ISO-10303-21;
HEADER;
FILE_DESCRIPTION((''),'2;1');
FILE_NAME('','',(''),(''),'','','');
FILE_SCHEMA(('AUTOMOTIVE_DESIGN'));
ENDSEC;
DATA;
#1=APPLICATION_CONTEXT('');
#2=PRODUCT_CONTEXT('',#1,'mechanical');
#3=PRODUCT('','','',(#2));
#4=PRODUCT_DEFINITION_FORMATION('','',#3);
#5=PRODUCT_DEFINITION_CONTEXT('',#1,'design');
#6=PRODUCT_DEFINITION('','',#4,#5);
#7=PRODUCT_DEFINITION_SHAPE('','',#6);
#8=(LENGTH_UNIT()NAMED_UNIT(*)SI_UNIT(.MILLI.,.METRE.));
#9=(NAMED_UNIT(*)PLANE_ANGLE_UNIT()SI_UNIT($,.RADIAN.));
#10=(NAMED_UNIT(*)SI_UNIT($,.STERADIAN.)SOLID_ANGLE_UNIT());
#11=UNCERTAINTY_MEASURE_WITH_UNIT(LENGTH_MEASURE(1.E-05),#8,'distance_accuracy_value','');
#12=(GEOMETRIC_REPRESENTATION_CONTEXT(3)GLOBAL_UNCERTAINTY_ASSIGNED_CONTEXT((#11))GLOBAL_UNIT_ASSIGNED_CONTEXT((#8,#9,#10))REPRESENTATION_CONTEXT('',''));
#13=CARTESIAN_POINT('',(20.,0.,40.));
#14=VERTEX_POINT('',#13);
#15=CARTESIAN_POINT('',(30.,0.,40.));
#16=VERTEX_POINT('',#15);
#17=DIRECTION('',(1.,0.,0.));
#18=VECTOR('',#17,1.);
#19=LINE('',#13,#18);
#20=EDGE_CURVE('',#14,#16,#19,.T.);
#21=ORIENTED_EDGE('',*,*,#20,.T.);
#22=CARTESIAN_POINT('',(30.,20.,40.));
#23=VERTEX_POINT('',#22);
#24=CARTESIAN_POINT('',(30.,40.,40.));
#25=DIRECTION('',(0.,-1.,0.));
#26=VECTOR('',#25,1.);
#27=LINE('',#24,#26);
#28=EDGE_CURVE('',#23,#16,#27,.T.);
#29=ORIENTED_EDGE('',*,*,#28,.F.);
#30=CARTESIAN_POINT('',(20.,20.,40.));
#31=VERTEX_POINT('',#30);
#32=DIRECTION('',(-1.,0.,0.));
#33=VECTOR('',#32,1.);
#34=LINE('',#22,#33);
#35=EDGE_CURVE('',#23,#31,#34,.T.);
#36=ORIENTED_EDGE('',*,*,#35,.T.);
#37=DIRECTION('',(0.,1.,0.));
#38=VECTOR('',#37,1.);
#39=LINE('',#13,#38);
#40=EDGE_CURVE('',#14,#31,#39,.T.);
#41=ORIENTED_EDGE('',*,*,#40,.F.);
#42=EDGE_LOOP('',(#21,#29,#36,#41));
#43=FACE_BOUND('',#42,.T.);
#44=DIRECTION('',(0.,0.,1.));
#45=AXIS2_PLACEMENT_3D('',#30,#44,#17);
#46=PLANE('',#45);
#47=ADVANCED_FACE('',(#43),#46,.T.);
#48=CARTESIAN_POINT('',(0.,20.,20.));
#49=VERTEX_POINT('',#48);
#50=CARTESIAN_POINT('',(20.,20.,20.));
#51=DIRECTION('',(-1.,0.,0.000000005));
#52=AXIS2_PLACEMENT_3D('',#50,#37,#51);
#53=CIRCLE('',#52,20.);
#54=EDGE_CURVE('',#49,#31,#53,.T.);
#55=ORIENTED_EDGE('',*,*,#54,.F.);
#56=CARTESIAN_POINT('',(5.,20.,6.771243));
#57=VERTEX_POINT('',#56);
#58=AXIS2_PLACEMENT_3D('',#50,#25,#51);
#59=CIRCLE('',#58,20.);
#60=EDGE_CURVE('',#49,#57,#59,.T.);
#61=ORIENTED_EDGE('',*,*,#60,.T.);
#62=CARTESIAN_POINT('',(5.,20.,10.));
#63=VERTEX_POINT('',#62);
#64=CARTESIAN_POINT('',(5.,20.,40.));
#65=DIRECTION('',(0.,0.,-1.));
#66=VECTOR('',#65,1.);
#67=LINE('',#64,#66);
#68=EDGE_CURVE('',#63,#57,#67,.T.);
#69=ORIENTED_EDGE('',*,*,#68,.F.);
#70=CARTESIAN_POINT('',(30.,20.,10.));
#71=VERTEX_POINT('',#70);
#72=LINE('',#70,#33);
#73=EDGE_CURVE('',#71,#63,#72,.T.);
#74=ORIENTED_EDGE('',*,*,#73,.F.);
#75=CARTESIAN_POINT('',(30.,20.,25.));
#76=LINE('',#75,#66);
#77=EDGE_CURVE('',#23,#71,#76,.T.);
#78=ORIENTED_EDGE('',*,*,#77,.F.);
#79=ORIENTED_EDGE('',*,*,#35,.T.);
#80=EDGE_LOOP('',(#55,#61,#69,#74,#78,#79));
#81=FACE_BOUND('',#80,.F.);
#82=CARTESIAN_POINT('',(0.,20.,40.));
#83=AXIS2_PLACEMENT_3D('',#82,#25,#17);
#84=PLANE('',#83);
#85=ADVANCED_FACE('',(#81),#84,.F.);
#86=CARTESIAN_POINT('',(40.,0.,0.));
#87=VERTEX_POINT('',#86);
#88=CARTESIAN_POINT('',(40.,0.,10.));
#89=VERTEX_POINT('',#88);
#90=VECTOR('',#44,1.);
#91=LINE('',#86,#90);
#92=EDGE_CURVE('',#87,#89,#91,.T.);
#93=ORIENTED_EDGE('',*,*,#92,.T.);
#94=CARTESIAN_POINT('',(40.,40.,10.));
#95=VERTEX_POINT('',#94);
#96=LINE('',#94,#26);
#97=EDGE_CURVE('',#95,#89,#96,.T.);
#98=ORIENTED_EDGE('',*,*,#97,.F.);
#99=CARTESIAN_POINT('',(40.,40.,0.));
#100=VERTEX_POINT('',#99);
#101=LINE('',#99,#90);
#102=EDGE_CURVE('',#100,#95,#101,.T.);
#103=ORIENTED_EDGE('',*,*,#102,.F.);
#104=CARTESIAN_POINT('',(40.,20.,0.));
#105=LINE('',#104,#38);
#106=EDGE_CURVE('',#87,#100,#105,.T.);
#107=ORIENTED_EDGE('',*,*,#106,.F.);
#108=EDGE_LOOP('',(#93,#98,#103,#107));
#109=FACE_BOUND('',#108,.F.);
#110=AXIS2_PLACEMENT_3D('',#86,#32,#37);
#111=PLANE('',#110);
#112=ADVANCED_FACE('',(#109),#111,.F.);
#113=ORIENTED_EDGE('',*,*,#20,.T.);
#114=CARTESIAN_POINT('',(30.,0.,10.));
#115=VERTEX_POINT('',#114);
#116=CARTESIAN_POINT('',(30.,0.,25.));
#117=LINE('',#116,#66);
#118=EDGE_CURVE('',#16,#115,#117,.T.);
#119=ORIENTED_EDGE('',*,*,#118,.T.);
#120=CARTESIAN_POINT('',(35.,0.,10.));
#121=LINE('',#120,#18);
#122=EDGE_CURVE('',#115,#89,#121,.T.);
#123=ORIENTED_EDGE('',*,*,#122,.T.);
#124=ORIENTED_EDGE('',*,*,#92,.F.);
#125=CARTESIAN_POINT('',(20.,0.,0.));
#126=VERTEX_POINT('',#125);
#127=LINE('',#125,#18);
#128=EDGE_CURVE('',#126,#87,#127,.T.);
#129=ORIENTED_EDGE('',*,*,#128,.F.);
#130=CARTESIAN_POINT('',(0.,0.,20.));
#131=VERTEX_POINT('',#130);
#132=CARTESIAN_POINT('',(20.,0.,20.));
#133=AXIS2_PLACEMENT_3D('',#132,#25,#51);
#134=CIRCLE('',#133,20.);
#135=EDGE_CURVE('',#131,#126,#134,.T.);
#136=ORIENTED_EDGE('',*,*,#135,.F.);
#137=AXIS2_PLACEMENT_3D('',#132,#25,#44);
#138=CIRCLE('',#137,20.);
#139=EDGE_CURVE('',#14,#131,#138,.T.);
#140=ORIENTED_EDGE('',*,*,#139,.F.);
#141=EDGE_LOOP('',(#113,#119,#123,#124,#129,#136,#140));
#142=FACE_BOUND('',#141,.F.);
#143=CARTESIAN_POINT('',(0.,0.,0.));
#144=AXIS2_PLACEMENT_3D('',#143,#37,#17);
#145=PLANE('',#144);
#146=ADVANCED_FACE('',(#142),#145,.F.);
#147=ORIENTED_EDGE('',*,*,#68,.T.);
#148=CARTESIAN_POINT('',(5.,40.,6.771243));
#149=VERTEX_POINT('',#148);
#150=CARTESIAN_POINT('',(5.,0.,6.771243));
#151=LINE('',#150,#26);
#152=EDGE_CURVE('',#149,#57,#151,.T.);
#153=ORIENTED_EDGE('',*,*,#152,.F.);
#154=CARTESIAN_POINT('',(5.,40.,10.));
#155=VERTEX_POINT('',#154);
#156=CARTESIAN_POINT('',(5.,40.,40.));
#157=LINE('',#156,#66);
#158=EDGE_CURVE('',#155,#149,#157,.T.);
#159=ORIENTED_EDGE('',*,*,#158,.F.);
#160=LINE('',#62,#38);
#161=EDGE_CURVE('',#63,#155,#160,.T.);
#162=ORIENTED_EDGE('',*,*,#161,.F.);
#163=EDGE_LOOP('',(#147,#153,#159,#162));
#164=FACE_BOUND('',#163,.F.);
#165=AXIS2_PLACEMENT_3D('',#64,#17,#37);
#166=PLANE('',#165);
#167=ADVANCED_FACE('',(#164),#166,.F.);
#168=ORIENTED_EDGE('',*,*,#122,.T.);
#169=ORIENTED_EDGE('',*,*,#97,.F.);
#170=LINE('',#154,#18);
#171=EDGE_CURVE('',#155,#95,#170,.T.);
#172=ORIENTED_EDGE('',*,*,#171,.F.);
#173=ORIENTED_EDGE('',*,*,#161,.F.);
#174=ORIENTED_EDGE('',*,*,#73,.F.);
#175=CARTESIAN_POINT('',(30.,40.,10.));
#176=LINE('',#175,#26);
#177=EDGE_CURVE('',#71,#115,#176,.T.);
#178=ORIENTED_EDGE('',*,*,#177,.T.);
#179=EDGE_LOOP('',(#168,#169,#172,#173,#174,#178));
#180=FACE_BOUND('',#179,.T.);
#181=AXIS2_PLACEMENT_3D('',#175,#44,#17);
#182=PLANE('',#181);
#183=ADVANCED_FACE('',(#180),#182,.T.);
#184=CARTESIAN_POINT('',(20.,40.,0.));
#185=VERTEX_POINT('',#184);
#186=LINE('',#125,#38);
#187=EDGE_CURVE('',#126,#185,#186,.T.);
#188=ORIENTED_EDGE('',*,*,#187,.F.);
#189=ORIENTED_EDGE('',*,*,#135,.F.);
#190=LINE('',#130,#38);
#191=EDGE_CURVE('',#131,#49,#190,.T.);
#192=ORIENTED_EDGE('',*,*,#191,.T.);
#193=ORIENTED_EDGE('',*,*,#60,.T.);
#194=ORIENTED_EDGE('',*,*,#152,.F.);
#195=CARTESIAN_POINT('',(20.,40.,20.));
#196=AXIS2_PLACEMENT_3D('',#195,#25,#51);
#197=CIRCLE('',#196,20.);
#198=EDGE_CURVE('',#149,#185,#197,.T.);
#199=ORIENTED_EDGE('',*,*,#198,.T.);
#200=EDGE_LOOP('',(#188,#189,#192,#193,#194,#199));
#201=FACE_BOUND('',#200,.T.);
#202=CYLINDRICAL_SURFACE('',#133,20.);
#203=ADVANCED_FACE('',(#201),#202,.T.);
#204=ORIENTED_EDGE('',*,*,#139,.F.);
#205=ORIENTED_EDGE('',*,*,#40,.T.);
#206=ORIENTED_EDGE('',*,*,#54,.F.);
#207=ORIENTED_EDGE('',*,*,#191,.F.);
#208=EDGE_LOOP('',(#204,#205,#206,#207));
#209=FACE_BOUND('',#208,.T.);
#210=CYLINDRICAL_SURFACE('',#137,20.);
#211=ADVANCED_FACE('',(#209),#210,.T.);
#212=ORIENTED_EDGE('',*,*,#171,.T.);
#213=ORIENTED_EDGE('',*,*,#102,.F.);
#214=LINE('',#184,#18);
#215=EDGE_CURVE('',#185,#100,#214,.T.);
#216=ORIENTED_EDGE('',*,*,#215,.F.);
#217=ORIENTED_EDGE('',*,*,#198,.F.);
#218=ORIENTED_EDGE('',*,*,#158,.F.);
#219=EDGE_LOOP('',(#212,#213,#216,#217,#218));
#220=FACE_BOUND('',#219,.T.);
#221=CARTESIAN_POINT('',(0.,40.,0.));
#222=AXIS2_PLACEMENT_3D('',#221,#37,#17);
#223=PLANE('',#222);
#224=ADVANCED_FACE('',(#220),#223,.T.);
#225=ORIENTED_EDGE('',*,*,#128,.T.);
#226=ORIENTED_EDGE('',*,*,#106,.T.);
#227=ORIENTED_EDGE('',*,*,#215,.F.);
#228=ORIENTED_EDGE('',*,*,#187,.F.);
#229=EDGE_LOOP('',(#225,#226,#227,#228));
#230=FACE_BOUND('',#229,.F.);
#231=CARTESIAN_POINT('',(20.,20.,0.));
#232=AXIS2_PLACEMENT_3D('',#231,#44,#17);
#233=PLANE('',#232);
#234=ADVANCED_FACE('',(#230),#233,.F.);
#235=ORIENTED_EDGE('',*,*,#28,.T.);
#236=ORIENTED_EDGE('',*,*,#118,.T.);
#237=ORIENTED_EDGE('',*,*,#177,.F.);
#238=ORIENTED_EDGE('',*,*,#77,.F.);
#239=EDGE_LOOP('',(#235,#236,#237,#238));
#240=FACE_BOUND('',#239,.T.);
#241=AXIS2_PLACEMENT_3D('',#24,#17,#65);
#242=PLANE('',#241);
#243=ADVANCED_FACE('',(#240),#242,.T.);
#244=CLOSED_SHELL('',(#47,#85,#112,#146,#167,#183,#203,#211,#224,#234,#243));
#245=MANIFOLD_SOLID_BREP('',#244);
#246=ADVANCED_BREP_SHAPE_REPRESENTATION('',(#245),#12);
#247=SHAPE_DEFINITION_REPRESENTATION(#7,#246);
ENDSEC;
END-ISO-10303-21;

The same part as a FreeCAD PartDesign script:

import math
import FreeCAD as App
import Part
import Sketcher


def add_polygon(sketch, points):
    """Adds a closed chain of lines whose ends are joined by coincident constraints."""
    first, n = sketch.GeometryCount, len(points)
    for a, b in zip(points, points[1:] + points[:1]):
        sketch.addGeometry(Part.LineSegment(App.Vector(*a, 0), App.Vector(*b, 0)), False)
    for i in range(n):
        sketch.addConstraint(Sketcher.Constraint("Coincident", first + i, 2, first + (i + 1) % n, 1))

doc = App.newDocument("Part")
body = doc.addObject("PartDesign::Body", "Body")

# Sketch on XY plane
sketch1 = doc.addObject("Sketcher::SketchObject", "Sketch")
body.addObject(sketch1)
sketch1.AttachmentSupport = (doc.XY_Plane, [""])
sketch1.MapMode = "FlatFace"
add_polygon(sketch1, [(0, 40), (0, 0), (40, 0), (40, 40)])  # lines 0-3
sketch1.addConstraint(Sketcher.Constraint("Vertical", 0))
sketch1.addConstraint(Sketcher.Constraint("Horizontal", 1))
sketch1.addConstraint(Sketcher.Constraint("Vertical", 2))
sketch1.addConstraint(Sketcher.Constraint("Horizontal", 3))
sketch1.addConstraint(Sketcher.Constraint("Coincident", 0, 2, -1, 1))
sketch1.addConstraint(Sketcher.Constraint("Equal", 3, 0))
sketch1.addConstraint(Sketcher.Constraint("DistanceX", 1, 1, 1, 2, 40.0))
pad1 = doc.addObject("PartDesign::Pad", "Pad")
body.addObject(pad1)
pad1.Profile = sketch1
pad1.Length = 40

# Sketch on XY plane
sketch2 = doc.addObject("Sketcher::SketchObject", "Sketch001")
body.addObject(sketch2)
sketch2.AttachmentSupport = (doc.XY_Plane, [""])
sketch2.MapMode = "FlatFace"
sketch2.AttachmentOffset = App.Placement(App.Vector(0, 0, 40), App.Rotation())
add_polygon(sketch2, [(0, 40), (0, 20), (5, 20), (5, 40)])  # lines 0-3
sketch2.addConstraint(Sketcher.Constraint("Vertical", 0))
sketch2.addConstraint(Sketcher.Constraint("Horizontal", 1))
sketch2.addConstraint(Sketcher.Constraint("Vertical", 2))
sketch2.addConstraint(Sketcher.Constraint("Horizontal", 3))
sketch2.addConstraint(Sketcher.Constraint("PointOnObject", 0, 2, -2))
sketch2.addConstraint(Sketcher.Constraint("DistanceX", 1, 1, 1, 2, 5.0))
sketch2.addConstraint(Sketcher.Constraint("DistanceY", 0, 2, 0, 1, 20.0))
sketch2.addConstraint(Sketcher.Constraint("DistanceY", -1, 1, 0, 2, 20.0))
pocket1 = doc.addObject("PartDesign::Pocket", "Pocket")
body.addObject(pocket1)
pocket1.Profile = sketch2
pocket1.Length = 40

# Sketch on XZ plane
sketch3 = doc.addObject("Sketcher::SketchObject", "Sketch002")
body.addObject(sketch3)
sketch3.AttachmentSupport = (doc.XZ_Plane, [""])
sketch3.MapMode = "FlatFace"
sketch3.addGeometry(Part.ArcOfCircle(Part.Circle(App.Vector(20, 20, 0), App.Vector(0, 0, 1), 20), math.radians(180), math.radians(270)), False)
sketch3.addGeometry(Part.LineSegment(App.Vector(20, 0, 0), App.Vector(0, 0, 0)), False)
sketch3.addGeometry(Part.LineSegment(App.Vector(0, 0, 0), App.Vector(0, 20, 0)), False)
sketch3.addGeometry(Part.ArcOfCircle(Part.Circle(App.Vector(20, 20, 0), App.Vector(0, 0, 1), 20), math.radians(90), math.radians(180)), False)
sketch3.addGeometry(Part.LineSegment(App.Vector(0, 20, 0), App.Vector(0, 40, 0)), False)
sketch3.addGeometry(Part.LineSegment(App.Vector(0, 40, 0), App.Vector(20, 40, 0)), False)
sketch3.addConstraint(Sketcher.Constraint("Tangent", 0, 2, 1, 1))
sketch3.addConstraint(Sketcher.Constraint("Coincident", 1, 2, 2, 1))
sketch3.addConstraint(Sketcher.Constraint("Tangent", 2, 2, 0, 1))
sketch3.addConstraint(Sketcher.Constraint("Tangent", 3, 2, 4, 1))
sketch3.addConstraint(Sketcher.Constraint("Coincident", 4, 2, 5, 1))
sketch3.addConstraint(Sketcher.Constraint("Tangent", 5, 2, 3, 1))
sketch3.addConstraint(Sketcher.Constraint("Horizontal", 1))
sketch3.addConstraint(Sketcher.Constraint("Vertical", 2))
sketch3.addConstraint(Sketcher.Constraint("Vertical", 4))
sketch3.addConstraint(Sketcher.Constraint("Horizontal", 5))
sketch3.addConstraint(Sketcher.Constraint("Coincident", 1, 2, -1, 1))
sketch3.addConstraint(Sketcher.Constraint("Coincident", 3, 3, 0, 3))
sketch3.addConstraint(Sketcher.Constraint("Equal", 0, 3))
sketch3.addConstraint(Sketcher.Constraint("Radius", 0, 20.0))
pocket2 = doc.addObject("PartDesign::Pocket", "Pocket001")
body.addObject(pocket2)
pocket2.Profile = sketch3
pocket2.Length = 40

# Sketch on XZ plane
sketch4 = doc.addObject("Sketcher::SketchObject", "Sketch003")
body.addObject(sketch4)
sketch4.AttachmentSupport = (doc.XZ_Plane, [""])
sketch4.MapMode = "FlatFace"
sketch4.AttachmentOffset = App.Placement(App.Vector(0, 0, -40), App.Rotation())
add_polygon(sketch4, [(30, 10), (30, 40), (40, 40), (40, 10)])  # lines 0-3
sketch4.addConstraint(Sketcher.Constraint("Vertical", 0))
sketch4.addConstraint(Sketcher.Constraint("Horizontal", 1))
sketch4.addConstraint(Sketcher.Constraint("Vertical", 2))
sketch4.addConstraint(Sketcher.Constraint("Horizontal", 3))
sketch4.addConstraint(Sketcher.Constraint("DistanceX", 1, 1, 1, 2, 10.0))
sketch4.addConstraint(Sketcher.Constraint("DistanceY", 0, 1, 0, 2, 30.0))
sketch4.addConstraint(Sketcher.Constraint("DistanceX", -1, 1, 0, 2, 30.0))
sketch4.addConstraint(Sketcher.Constraint("DistanceY", -1, 1, 0, 2, 40.0))
pocket3 = doc.addObject("PartDesign::Pocket", "Pocket002")
body.addObject(pocket3)
pocket3.Profile = sketch4
pocket3.Length = 40
pocket3.Reversed = True

# Sketch on YZ plane
sketch5 = doc.addObject("Sketcher::SketchObject", "Sketch004")
body.addObject(sketch5)
sketch5.AttachmentSupport = (doc.YZ_Plane, [""])
sketch5.MapMode = "FlatFace"
sketch5.AttachmentOffset = App.Placement(App.Vector(0, 0, 30), App.Rotation())
add_polygon(sketch5, [(40, 40), (20, 40), (20, 10), (40, 10)])  # lines 0-3
sketch5.addConstraint(Sketcher.Constraint("Horizontal", 0))
sketch5.addConstraint(Sketcher.Constraint("Vertical", 1))
sketch5.addConstraint(Sketcher.Constraint("Horizontal", 2))
sketch5.addConstraint(Sketcher.Constraint("Vertical", 3))
sketch5.addConstraint(Sketcher.Constraint("DistanceX", 0, 2, 0, 1, 20.0))
sketch5.addConstraint(Sketcher.Constraint("DistanceY", 1, 2, 1, 1, 30.0))
sketch5.addConstraint(Sketcher.Constraint("DistanceX", -1, 1, 0, 2, 20.0))
sketch5.addConstraint(Sketcher.Constraint("DistanceY", -1, 1, 0, 2, 40.0))
pocket4 = doc.addObject("PartDesign::Pocket", "Pocket003")
body.addObject(pocket4)
pocket4.Profile = sketch5
pocket4.Length = 40

doc.recompute()
